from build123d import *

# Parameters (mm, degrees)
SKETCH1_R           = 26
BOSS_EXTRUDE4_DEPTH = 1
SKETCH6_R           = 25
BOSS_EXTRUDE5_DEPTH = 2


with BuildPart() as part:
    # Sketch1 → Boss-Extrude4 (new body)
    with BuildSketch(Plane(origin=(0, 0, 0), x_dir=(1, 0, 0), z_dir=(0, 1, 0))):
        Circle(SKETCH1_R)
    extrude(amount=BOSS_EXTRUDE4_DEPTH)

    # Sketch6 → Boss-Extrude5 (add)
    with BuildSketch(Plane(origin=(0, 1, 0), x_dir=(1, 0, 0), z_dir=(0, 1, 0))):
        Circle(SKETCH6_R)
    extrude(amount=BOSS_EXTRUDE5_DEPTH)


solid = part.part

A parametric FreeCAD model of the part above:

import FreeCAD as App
import Part
import Sketcher

V = App.Vector

doc = App.newDocument("Part")
body = doc.addObject("PartDesign::Body", "Body")

# Sketch on XZ plane
sketch1 = body.newObject("Sketcher::SketchObject", "Sketch")
sketch1.AttachmentSupport = (doc.getObject("XZ_Plane"), [""])
sketch1.MapMode = "FlatFace"
sketch1.addGeometry(Part.Circle(V(0, 0, 0), V(0, 0, 1), 26), False)
sketch1.addConstraint(Sketcher.Constraint("Coincident", 0, 3, -1, 1))
sketch1.addConstraint(Sketcher.Constraint("Diameter", 0, 52.0))
pad1 = body.newObject("PartDesign::Pad", "Pad")
pad1.Profile = sketch1
pad1.Length = 1
pad1.Reversed = True

# Sketch on XZ plane
sketch2 = body.newObject("Sketcher::SketchObject", "Sketch001")
sketch2.AttachmentSupport = (doc.getObject("XZ_Plane"), [""])
sketch2.MapMode = "FlatFace"
sketch2.AttachmentOffset = App.Placement(V(0, 0, -1), App.Rotation())
sketch2.addGeometry(Part.Circle(V(0, 0, 0), V(0, 0, 1), 25), False)
sketch2.addConstraint(Sketcher.Constraint("Coincident", 0, 3, -1, 1))
sketch2.addConstraint(Sketcher.Constraint("Diameter", 0, 50.0))
pad2 = body.newObject("PartDesign::Pad", "Pad001")
pad2.Profile = sketch2
pad2.Length = 2
pad2.Reversed = True

doc.recompute()
